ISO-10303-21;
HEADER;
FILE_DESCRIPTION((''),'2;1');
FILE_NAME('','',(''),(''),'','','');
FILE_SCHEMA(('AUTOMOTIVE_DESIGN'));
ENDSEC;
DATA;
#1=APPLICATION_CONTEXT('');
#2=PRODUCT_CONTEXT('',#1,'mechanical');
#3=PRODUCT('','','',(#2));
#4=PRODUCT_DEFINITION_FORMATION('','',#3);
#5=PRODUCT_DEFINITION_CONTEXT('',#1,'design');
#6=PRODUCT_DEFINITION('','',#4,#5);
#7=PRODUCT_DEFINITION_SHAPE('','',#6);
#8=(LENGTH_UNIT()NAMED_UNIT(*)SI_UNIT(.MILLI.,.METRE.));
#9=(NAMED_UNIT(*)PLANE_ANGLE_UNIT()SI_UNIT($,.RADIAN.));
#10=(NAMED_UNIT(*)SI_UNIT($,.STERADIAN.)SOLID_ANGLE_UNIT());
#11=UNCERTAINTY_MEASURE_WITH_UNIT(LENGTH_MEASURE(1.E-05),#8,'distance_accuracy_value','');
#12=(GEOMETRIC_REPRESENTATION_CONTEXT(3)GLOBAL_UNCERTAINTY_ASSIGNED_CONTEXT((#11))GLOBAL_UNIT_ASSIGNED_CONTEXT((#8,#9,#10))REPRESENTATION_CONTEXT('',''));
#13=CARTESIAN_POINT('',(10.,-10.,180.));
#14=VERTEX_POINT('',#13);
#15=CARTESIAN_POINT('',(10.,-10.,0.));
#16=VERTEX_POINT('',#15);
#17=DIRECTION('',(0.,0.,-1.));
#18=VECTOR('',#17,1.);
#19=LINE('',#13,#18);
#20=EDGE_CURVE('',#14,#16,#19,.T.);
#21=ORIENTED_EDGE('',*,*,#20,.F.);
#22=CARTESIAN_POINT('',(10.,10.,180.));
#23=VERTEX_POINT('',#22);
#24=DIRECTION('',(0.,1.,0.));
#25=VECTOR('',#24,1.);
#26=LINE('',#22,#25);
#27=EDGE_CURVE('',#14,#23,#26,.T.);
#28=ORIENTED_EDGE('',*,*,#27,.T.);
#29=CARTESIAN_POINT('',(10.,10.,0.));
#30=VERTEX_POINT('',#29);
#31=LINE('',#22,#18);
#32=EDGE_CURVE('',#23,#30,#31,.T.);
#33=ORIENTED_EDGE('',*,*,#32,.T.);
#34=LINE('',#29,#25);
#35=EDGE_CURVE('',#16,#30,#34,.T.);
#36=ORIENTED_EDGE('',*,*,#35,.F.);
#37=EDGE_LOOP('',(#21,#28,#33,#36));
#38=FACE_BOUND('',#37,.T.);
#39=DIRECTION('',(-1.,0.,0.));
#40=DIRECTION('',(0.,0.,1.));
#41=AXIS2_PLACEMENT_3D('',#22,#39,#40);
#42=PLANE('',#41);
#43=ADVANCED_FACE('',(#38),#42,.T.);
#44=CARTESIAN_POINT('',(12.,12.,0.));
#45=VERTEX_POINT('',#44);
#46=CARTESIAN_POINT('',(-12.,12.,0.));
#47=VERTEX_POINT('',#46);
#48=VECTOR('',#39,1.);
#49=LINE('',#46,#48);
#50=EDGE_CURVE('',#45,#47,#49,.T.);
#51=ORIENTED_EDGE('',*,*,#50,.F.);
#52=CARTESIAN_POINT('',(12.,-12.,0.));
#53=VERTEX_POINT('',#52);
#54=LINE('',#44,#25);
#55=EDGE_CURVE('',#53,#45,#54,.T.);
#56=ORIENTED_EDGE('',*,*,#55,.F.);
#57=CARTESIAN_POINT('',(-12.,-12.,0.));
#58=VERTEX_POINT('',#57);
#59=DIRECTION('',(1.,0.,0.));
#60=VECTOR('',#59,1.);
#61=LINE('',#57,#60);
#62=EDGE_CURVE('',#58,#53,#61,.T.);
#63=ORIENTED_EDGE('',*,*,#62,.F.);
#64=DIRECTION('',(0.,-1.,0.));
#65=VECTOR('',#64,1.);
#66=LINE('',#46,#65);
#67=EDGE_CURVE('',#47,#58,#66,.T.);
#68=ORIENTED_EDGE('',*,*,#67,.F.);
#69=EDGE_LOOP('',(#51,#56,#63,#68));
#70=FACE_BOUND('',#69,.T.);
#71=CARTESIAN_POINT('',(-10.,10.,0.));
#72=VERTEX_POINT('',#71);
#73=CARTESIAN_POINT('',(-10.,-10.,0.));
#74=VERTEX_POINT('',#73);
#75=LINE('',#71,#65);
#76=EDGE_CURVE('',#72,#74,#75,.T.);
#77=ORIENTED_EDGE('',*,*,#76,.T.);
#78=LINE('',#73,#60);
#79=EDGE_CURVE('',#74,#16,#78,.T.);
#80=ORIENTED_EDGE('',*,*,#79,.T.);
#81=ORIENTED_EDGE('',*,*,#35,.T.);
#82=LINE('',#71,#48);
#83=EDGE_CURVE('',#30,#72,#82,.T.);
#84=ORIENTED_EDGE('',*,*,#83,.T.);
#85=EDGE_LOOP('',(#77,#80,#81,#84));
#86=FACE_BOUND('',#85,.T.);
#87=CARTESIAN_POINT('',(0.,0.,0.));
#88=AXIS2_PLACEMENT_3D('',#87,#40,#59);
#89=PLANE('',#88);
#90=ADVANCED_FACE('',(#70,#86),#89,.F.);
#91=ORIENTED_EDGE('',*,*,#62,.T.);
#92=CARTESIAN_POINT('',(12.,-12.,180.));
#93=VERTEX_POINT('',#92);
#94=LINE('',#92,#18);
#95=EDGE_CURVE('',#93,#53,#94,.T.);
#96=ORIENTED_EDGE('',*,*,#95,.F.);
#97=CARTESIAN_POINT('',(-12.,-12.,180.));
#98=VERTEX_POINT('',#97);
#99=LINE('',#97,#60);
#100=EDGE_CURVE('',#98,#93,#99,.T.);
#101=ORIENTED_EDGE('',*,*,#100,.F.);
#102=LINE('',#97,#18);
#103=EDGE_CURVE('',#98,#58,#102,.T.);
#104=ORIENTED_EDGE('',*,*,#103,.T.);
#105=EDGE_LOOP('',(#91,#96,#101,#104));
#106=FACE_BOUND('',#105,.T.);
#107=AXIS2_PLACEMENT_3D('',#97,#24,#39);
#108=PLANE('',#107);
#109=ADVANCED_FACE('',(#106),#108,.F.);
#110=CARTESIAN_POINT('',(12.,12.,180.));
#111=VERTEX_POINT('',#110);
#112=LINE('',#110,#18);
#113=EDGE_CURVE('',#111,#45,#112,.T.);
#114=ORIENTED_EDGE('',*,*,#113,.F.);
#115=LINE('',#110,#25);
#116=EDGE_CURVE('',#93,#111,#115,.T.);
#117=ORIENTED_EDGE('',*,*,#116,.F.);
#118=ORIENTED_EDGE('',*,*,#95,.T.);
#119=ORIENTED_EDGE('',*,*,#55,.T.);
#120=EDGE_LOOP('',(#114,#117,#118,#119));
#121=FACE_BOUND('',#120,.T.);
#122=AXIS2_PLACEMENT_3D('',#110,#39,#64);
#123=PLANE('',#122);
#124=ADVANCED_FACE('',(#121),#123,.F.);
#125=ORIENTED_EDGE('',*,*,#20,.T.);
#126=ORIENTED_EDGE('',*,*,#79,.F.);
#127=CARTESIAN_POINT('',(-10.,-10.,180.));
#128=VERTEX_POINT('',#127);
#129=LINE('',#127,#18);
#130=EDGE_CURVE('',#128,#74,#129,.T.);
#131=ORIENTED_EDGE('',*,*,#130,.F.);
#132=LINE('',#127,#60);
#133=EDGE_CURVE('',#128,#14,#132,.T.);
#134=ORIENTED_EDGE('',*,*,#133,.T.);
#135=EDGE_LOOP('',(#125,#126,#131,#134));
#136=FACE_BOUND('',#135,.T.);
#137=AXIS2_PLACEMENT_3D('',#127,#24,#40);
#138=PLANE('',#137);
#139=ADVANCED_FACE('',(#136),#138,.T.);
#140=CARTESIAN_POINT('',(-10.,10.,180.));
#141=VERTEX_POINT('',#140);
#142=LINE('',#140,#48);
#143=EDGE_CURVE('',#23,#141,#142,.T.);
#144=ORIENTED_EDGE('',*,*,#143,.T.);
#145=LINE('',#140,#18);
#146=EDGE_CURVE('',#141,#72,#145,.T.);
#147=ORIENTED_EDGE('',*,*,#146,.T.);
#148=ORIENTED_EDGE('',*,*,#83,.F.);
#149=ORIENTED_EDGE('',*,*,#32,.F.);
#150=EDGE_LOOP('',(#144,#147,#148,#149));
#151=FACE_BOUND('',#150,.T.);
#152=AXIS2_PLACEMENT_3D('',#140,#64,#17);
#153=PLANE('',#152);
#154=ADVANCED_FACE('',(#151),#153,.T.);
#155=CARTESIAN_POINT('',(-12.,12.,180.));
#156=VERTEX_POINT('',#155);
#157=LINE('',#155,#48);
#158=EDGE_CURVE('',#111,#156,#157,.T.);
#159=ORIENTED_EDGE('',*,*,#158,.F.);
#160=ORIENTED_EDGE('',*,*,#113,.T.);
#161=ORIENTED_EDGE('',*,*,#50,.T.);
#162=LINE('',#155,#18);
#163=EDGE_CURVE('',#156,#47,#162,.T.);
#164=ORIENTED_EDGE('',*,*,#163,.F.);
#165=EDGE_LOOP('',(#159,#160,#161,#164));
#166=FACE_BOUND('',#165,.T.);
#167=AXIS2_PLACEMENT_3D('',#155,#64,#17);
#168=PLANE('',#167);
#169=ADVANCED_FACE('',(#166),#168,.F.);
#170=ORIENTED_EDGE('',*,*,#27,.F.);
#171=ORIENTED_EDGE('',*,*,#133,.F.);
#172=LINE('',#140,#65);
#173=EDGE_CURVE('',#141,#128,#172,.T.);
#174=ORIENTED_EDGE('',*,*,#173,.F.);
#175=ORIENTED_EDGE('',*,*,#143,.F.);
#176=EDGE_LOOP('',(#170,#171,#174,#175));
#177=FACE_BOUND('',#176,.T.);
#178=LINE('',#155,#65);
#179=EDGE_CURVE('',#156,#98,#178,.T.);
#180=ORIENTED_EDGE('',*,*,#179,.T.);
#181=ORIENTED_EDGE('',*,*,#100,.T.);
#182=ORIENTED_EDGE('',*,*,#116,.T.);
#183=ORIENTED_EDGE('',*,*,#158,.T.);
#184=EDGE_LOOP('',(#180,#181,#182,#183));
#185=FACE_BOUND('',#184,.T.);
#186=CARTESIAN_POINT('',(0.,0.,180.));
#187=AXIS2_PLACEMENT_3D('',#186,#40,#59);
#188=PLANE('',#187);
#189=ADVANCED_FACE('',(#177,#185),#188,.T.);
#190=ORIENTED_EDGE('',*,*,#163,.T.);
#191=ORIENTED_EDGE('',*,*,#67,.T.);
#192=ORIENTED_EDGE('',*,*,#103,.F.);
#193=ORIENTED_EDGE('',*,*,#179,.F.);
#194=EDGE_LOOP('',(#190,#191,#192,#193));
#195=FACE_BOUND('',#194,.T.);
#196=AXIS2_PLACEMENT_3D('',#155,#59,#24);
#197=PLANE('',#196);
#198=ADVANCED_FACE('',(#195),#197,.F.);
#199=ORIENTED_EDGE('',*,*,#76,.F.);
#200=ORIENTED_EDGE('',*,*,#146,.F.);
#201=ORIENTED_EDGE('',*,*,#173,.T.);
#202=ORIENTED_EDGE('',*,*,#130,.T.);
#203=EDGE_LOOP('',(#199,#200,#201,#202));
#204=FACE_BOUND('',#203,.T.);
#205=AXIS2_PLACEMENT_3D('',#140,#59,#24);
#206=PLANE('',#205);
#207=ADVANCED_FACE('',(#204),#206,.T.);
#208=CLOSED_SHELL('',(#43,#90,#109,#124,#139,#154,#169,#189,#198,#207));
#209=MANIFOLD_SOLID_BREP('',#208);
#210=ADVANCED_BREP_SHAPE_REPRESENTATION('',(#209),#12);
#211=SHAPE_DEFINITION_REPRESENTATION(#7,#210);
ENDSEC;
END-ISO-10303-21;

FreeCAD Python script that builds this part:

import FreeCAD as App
import Part
import Sketcher
Q = App.Units.Quantity


def add_polygon(sketch, points):
    """Adds a closed chain of lines whose ends are joined by coincident constraints."""
    first, n = sketch.GeometryCount, len(points)
    for a, b in zip(points, points[1:] + points[:1]):
        sketch.addGeometry(Part.LineSegment(App.Vector(*a, 0), App.Vector(*b, 0)), False)
    for i in range(n):
        sketch.addConstraint(Sketcher.Constraint("Coincident", first + i, 2, first + (i + 1) % n, 1))

doc = App.newDocument("Part")
body = doc.addObject("PartDesign::Body", "Body")

sketch1 = doc.addObject("Sketcher::SketchObject", "Sketch")
body.addObject(sketch1)
sketch1.AttachmentSupport = (doc.XY_Plane, [""])
sketch1.MapMode = "FlatFace"
add_polygon(sketch1, [(-12, 12), (-12, -12), (12, -12), (12, 12)])
add_polygon(sketch1, [(10, -10), (-10, -10), (-10, 10), (10, 10)])
sketch1.addConstraint(Sketcher.Constraint("Vertical", 0))
sketch1.addConstraint(Sketcher.Constraint("Horizontal", 1))
sketch1.addConstraint(Sketcher.Constraint("Vertical", 2))
sketch1.addConstraint(Sketcher.Constraint("Horizontal", 3))
sketch1.addConstraint(Sketcher.Constraint("Horizontal", 4))
sketch1.addConstraint(Sketcher.Constraint("Vertical", 5))
sketch1.addConstraint(Sketcher.Constraint("Horizontal", 6))
sketch1.addConstraint(Sketcher.Constraint("Vertical", 7))
sketch1.addConstraint(Sketcher.Constraint("Symmetric", 0, 2, 2, 2, -1, 1))
sketch1.addConstraint(Sketcher.Constraint("Symmetric", 4, 2, 6, 2, -1, 1))
sketch1.addConstraint(Sketcher.Constraint("Equal", 3, 0))
sketch1.addConstraint(Sketcher.Constraint("Equal", 6, 5))
sketch1.addConstraint(Sketcher.Constraint("DistanceX", 1, 1, 1, 2, Q("24 mm")))
sketch1.addConstraint(Sketcher.Constraint("DistanceX", 4, 2, 4, 1, Q("20 mm")))
pad1 = doc.addObject("PartDesign::Pad", "Pad")
body.addObject(pad1)
pad1.Profile = sketch1
pad1.Length = 180

doc.recompute()
